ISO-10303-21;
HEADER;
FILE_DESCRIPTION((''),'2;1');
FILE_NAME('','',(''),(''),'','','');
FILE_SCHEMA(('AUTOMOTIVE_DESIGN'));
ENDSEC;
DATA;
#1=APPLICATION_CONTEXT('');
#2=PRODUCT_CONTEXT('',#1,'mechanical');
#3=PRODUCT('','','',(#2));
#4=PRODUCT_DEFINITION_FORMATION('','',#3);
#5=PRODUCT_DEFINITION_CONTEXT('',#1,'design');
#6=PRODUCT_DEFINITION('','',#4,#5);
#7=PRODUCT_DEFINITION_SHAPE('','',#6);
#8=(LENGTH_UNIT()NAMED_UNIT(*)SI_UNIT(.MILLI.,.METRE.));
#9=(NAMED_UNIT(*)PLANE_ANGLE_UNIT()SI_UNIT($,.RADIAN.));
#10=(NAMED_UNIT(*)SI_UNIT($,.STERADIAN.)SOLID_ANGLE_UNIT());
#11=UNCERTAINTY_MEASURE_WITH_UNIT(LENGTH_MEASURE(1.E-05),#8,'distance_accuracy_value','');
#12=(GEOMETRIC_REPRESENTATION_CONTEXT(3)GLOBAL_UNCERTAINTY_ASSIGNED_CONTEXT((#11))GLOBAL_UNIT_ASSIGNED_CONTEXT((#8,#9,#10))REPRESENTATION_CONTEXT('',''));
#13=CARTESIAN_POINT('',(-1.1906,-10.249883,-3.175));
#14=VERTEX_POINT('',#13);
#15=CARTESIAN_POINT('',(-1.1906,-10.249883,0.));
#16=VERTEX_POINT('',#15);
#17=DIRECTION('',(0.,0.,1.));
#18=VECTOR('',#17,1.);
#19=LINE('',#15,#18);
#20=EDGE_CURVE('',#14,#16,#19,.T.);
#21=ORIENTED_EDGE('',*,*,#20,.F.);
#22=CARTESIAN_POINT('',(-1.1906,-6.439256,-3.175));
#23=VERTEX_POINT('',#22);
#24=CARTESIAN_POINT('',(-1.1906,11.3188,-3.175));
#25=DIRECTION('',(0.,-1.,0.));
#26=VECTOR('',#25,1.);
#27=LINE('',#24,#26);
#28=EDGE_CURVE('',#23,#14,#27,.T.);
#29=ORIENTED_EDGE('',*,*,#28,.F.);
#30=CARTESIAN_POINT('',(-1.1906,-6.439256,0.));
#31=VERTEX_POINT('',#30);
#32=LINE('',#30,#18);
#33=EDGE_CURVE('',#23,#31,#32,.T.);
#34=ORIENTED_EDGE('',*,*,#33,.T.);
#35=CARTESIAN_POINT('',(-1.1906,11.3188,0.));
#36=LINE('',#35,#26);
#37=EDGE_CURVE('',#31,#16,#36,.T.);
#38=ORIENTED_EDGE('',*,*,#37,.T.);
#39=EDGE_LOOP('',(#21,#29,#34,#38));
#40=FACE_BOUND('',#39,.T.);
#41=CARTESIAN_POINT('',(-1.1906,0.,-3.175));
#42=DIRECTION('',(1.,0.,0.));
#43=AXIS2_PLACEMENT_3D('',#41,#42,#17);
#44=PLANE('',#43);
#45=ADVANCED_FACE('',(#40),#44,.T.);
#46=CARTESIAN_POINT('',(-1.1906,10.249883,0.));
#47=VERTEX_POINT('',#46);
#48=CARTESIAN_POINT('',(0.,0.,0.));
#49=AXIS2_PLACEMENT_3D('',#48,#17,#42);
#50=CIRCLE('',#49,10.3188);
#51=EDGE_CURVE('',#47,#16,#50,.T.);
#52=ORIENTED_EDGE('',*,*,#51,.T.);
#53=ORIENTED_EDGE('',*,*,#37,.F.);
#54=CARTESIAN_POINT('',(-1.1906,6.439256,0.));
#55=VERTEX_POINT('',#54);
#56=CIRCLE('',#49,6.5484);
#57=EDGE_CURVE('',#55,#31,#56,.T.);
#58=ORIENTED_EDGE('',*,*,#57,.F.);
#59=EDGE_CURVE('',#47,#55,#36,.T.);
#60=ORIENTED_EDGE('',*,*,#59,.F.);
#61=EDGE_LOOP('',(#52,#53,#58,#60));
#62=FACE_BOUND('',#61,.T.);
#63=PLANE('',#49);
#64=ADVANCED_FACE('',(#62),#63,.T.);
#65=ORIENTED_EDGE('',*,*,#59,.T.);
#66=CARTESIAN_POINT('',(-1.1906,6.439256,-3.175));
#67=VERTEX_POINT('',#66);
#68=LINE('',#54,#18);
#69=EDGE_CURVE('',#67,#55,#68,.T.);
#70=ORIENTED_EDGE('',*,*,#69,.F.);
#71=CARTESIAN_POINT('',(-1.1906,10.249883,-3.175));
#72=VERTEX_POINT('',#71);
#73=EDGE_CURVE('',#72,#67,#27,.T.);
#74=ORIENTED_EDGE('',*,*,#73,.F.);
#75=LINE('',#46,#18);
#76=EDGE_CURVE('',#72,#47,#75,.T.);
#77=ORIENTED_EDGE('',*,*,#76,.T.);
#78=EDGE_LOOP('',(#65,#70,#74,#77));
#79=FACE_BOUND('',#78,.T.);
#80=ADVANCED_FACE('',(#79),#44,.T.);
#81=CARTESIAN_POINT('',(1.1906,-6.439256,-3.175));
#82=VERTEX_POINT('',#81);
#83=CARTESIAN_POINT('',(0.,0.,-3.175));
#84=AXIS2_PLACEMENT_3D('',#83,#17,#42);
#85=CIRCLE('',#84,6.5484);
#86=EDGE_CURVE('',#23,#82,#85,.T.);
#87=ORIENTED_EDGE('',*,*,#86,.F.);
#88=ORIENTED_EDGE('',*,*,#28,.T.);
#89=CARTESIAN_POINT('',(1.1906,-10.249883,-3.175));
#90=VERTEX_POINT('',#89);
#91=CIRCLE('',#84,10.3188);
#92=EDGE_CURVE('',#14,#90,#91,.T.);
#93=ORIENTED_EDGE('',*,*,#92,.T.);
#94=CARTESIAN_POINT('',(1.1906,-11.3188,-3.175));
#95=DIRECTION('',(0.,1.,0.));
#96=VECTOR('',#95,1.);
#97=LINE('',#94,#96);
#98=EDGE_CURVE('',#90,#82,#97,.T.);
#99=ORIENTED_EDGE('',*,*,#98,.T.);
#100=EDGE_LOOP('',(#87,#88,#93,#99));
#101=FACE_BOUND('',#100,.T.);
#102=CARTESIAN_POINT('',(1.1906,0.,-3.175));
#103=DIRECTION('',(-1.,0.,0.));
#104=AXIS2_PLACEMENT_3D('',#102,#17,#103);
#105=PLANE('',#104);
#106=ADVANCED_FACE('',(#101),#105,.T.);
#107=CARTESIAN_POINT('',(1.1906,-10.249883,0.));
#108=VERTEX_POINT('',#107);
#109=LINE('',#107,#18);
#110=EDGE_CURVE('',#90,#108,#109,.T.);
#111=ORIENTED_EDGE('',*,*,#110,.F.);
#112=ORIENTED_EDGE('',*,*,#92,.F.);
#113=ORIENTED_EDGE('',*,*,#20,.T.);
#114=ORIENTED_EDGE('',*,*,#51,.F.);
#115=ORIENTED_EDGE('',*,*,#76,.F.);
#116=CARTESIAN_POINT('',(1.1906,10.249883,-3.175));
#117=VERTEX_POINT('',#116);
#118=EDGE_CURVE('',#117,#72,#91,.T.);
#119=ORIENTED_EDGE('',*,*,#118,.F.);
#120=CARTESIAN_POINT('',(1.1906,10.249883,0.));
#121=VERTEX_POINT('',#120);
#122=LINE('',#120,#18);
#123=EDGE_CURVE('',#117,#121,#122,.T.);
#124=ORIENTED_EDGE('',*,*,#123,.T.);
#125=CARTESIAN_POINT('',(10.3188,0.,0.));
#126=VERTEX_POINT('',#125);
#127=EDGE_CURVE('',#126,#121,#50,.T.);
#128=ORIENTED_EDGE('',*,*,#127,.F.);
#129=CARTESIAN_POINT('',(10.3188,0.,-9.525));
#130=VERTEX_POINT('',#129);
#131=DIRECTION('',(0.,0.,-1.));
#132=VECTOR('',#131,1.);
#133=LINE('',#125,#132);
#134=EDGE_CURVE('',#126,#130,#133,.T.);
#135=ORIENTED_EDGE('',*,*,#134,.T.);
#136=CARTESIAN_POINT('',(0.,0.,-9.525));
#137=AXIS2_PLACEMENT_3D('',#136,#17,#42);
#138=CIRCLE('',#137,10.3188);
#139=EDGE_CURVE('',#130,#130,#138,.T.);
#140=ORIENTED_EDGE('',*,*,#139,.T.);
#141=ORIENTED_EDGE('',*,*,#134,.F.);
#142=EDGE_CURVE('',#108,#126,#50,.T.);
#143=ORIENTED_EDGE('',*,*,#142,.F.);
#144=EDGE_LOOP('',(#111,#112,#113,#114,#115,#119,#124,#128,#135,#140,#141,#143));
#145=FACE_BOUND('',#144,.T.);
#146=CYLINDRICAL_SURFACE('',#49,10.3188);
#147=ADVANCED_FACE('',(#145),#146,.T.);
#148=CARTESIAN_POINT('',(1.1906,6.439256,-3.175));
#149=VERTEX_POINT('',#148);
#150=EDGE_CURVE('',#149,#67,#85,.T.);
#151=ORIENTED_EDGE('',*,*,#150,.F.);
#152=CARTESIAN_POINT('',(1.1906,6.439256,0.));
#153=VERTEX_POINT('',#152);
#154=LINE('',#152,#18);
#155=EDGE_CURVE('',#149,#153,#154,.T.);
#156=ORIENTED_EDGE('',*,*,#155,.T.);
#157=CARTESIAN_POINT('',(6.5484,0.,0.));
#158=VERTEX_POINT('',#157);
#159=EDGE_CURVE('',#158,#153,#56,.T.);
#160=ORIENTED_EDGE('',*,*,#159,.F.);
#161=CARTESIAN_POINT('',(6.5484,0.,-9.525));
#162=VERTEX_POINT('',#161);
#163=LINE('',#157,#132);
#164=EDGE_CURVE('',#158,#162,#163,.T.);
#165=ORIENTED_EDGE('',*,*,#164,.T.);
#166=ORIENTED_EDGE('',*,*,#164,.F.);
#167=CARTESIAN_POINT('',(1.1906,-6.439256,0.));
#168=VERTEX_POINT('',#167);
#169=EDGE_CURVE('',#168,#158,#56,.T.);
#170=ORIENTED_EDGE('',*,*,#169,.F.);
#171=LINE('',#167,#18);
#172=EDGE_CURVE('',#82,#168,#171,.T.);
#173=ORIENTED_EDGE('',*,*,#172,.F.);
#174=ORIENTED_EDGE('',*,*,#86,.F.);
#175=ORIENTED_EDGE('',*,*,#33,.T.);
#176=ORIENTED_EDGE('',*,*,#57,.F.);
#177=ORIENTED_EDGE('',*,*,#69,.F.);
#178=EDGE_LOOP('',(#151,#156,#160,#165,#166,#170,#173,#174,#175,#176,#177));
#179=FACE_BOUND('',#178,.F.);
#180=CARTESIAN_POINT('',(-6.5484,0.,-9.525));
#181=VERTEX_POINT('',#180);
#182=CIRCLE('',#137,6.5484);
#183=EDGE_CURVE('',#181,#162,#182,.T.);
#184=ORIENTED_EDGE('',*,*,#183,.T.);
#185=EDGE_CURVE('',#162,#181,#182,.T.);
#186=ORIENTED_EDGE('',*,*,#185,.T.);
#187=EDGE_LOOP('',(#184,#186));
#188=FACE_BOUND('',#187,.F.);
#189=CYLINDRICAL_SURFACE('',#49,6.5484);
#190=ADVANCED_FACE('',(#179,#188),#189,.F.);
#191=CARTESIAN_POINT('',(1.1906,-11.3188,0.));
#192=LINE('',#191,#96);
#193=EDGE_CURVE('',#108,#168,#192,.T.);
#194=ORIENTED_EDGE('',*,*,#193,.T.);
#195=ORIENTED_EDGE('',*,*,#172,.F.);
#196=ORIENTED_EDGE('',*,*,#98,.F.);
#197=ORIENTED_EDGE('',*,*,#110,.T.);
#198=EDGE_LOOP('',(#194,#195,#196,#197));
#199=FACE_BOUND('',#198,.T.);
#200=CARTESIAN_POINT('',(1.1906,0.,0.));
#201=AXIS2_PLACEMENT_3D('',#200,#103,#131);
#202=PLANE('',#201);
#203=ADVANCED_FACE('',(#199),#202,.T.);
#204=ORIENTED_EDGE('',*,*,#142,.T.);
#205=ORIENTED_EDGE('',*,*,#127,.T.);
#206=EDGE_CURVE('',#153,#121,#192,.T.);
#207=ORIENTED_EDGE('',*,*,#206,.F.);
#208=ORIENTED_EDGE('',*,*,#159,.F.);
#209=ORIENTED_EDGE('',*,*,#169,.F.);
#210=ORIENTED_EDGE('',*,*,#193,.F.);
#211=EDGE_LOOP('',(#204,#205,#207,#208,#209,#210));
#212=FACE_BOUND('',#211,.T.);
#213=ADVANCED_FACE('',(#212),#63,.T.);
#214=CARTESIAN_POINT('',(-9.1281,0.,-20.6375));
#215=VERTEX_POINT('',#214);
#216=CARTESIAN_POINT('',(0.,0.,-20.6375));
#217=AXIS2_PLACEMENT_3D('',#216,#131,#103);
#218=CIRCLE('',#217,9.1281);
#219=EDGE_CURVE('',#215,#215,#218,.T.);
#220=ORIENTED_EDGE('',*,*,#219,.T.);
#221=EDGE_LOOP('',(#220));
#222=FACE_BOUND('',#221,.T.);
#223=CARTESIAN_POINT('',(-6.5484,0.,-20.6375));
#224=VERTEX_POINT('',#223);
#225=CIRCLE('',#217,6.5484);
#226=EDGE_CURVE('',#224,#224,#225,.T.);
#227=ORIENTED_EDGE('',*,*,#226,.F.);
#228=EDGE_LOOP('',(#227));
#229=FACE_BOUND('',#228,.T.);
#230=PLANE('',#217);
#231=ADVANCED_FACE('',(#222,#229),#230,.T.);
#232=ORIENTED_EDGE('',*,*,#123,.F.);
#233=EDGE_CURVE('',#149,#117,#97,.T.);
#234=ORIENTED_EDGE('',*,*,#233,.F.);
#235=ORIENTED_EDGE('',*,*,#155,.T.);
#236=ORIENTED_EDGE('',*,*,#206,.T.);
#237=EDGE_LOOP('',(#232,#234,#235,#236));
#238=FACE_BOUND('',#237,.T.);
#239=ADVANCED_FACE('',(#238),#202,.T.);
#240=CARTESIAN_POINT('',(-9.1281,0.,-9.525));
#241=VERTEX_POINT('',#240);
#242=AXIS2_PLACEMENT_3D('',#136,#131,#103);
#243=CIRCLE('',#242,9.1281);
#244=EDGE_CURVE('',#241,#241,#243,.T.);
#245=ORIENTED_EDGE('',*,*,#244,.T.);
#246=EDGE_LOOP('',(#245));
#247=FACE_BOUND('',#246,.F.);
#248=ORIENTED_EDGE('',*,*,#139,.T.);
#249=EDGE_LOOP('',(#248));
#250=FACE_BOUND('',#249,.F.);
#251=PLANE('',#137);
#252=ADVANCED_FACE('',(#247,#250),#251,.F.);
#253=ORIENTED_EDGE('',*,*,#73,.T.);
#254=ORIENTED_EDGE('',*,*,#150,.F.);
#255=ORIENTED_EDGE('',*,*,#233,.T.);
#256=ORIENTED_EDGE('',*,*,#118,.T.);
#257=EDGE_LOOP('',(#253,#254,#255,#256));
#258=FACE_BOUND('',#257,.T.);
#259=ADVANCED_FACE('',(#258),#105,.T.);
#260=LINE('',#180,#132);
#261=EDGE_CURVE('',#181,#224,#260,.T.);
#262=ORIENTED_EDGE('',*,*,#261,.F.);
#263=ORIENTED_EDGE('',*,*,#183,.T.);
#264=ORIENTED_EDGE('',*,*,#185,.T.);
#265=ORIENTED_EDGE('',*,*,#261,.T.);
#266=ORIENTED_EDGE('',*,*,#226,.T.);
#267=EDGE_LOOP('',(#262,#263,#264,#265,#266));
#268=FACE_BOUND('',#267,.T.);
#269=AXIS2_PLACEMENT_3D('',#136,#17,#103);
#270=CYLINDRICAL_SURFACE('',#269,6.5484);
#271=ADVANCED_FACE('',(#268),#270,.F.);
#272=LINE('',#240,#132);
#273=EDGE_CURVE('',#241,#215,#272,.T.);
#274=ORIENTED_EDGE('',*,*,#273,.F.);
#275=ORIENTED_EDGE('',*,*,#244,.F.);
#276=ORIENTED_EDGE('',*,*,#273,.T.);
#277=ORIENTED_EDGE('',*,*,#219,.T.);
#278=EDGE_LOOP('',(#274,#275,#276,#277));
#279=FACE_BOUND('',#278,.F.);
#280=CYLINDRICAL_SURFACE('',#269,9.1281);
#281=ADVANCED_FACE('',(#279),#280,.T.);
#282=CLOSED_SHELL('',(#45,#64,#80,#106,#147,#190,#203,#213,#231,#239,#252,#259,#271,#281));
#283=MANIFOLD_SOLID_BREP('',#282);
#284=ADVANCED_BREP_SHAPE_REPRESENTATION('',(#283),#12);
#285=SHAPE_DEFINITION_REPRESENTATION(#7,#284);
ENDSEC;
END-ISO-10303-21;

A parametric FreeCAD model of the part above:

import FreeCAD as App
import Part
import Sketcher
from FreeCAD import Vector
Q = App.Units.Quantity


def add_polygon(sketch, points):
    """Adds a closed chain of lines whose ends are joined by coincident constraints."""
    first, n = sketch.GeometryCount, len(points)
    for a, b in zip(points, points[1:] + points[:1]):
        sketch.addGeometry(Part.LineSegment(App.Vector(*a, 0), App.Vector(*b, 0)), False)
    for i in range(n):
        sketch.addConstraint(Sketcher.Constraint("Coincident", first + i, 2, first + (i + 1) % n, 1))

doc = App.newDocument("Part")
params = doc.addObject("Spreadsheet::Sheet", "Params")
for row, (alias, value) in enumerate([
    ("sketch1_diameter", "0.8125 in"),
    ("sketch1_diameter2", "0.515622 in"),
    ("pad1_length", "0.375 in"),
    ("sketch2_diameter", "0.718748 in"),
    ("sketch2_diameter2", "0.515622 in"),
    ("pad2_length", "0.4375 in"),
    ("sketch3_width", "0.093748 in"),
    ("sketch3_height", "0.125 in"),
], start=1):
    params.set(f"A{row}", alias)
    params.set(f"B{row}", "=" + value)
    params.setAlias(f"B{row}", alias)

body = doc.addObject("PartDesign::Body", "Body")

sketch1 = doc.addObject("Sketcher::SketchObject", "Sketch")
body.addObject(sketch1)
sketch1.AttachmentSupport = (doc.XY_Plane, [""])
sketch1.MapMode = "FlatFace"
sketch1.addGeometry(Part.Circle(Vector(0, 0, 0), Vector(0, 0, 1), 10), False)
sketch1.addGeometry(Part.Circle(Vector(0, 0, 0), Vector(0, 0, 1), 7), False)
sketch1.addConstraint(Sketcher.Constraint("Coincident", 0, 3, -1, 1))
sketch1.addConstraint(Sketcher.Constraint("Coincident", 1, 3, -1, 1))
sketch1.addConstraint(Sketcher.Constraint("Diameter", 0, Q("0.8125 in")))
sketch1.addConstraint(Sketcher.Constraint("Diameter", 1, Q("0.515622 in")))
sketch1.setExpression("Constraints[2]", "Params.sketch1_diameter")
sketch1.setExpression("Constraints[3]", "Params.sketch1_diameter2")
pad1 = doc.addObject("PartDesign::Pad", "Pad")
body.addObject(pad1)
pad1.Profile = sketch1
pad1.setExpression("Length", "Params.pad1_length")
pad1.Reversed = True

sketch2 = doc.addObject("Sketcher::SketchObject", "Sketch001")
body.addObject(sketch2)
sketch2.AttachmentSupport = (doc.XY_Plane, [""])
sketch2.MapMode = "FlatFace"
sketch2.AttachmentOffset = App.Placement(Vector(0, 0, -0.375 * 25.4), App.Rotation())
sketch2.addGeometry(Part.Circle(Vector(0, 0, 0), Vector(0, 0, 1), 9), False)
sketch2.addGeometry(Part.Circle(Vector(0, 0, 0), Vector(0, 0, 1), 7), False)
sketch2.addConstraint(Sketcher.Constraint("Coincident", 0, 3, -1, 1))
sketch2.addConstraint(Sketcher.Constraint("Coincident", 1, 3, -1, 1))
sketch2.addConstraint(Sketcher.Constraint("Diameter", 0, Q("0.718748 in")))
sketch2.addConstraint(Sketcher.Constraint("Diameter", 1, Q("0.515622 in")))
sketch2.setExpression("Constraints[2]", "Params.sketch2_diameter")
sketch2.setExpression("Constraints[3]", "Params.sketch2_diameter2")
pad2 = doc.addObject("PartDesign::Pad", "Pad001")
body.addObject(pad2)
pad2.Profile = sketch2
pad2.setExpression("Length", "Params.pad2_length")
pad2.Reversed = True

sketch3 = doc.addObject("Sketcher::SketchObject", "Sketch002")
body.addObject(sketch3)
sketch3.AttachmentSupport = (doc.XZ_Plane, [""])
sketch3.MapMode = "FlatFace"
add_polygon(sketch3, [(-1.2, 0), (1.2, 0), (1.2, -3.2), (-1.2, -3.2)])
sketch3.addConstraint(Sketcher.Constraint("Horizontal", 0))
sketch3.addConstraint(Sketcher.Constraint("Vertical", 1))
sketch3.addConstraint(Sketcher.Constraint("Horizontal", 2))
sketch3.addConstraint(Sketcher.Constraint("Vertical", 3))
sketch3.addConstraint(Sketcher.Constraint("Symmetric", 0, 2, 3, 2, -1, 1))
sketch3.addConstraint(Sketcher.Constraint("DistanceX", 0, 1, 0, 2, Q("0.093748 in")))
sketch3.addConstraint(Sketcher.Constraint("DistanceY", 1, 2, 1, 1, Q("0.125 in")))
sketch3.setExpression("Constraints[9]", "Params.sketch3_width")
sketch3.setExpression("Constraints[10]", "Params.sketch3_height")
pocket1 = doc.addObject("PartDesign::Pocket", "Pocket")
body.addObject(pocket1)
pocket1.Profile = sketch3
pocket1.Type = "ThroughAll"
pocket1.Midplane = True

doc.recompute()
